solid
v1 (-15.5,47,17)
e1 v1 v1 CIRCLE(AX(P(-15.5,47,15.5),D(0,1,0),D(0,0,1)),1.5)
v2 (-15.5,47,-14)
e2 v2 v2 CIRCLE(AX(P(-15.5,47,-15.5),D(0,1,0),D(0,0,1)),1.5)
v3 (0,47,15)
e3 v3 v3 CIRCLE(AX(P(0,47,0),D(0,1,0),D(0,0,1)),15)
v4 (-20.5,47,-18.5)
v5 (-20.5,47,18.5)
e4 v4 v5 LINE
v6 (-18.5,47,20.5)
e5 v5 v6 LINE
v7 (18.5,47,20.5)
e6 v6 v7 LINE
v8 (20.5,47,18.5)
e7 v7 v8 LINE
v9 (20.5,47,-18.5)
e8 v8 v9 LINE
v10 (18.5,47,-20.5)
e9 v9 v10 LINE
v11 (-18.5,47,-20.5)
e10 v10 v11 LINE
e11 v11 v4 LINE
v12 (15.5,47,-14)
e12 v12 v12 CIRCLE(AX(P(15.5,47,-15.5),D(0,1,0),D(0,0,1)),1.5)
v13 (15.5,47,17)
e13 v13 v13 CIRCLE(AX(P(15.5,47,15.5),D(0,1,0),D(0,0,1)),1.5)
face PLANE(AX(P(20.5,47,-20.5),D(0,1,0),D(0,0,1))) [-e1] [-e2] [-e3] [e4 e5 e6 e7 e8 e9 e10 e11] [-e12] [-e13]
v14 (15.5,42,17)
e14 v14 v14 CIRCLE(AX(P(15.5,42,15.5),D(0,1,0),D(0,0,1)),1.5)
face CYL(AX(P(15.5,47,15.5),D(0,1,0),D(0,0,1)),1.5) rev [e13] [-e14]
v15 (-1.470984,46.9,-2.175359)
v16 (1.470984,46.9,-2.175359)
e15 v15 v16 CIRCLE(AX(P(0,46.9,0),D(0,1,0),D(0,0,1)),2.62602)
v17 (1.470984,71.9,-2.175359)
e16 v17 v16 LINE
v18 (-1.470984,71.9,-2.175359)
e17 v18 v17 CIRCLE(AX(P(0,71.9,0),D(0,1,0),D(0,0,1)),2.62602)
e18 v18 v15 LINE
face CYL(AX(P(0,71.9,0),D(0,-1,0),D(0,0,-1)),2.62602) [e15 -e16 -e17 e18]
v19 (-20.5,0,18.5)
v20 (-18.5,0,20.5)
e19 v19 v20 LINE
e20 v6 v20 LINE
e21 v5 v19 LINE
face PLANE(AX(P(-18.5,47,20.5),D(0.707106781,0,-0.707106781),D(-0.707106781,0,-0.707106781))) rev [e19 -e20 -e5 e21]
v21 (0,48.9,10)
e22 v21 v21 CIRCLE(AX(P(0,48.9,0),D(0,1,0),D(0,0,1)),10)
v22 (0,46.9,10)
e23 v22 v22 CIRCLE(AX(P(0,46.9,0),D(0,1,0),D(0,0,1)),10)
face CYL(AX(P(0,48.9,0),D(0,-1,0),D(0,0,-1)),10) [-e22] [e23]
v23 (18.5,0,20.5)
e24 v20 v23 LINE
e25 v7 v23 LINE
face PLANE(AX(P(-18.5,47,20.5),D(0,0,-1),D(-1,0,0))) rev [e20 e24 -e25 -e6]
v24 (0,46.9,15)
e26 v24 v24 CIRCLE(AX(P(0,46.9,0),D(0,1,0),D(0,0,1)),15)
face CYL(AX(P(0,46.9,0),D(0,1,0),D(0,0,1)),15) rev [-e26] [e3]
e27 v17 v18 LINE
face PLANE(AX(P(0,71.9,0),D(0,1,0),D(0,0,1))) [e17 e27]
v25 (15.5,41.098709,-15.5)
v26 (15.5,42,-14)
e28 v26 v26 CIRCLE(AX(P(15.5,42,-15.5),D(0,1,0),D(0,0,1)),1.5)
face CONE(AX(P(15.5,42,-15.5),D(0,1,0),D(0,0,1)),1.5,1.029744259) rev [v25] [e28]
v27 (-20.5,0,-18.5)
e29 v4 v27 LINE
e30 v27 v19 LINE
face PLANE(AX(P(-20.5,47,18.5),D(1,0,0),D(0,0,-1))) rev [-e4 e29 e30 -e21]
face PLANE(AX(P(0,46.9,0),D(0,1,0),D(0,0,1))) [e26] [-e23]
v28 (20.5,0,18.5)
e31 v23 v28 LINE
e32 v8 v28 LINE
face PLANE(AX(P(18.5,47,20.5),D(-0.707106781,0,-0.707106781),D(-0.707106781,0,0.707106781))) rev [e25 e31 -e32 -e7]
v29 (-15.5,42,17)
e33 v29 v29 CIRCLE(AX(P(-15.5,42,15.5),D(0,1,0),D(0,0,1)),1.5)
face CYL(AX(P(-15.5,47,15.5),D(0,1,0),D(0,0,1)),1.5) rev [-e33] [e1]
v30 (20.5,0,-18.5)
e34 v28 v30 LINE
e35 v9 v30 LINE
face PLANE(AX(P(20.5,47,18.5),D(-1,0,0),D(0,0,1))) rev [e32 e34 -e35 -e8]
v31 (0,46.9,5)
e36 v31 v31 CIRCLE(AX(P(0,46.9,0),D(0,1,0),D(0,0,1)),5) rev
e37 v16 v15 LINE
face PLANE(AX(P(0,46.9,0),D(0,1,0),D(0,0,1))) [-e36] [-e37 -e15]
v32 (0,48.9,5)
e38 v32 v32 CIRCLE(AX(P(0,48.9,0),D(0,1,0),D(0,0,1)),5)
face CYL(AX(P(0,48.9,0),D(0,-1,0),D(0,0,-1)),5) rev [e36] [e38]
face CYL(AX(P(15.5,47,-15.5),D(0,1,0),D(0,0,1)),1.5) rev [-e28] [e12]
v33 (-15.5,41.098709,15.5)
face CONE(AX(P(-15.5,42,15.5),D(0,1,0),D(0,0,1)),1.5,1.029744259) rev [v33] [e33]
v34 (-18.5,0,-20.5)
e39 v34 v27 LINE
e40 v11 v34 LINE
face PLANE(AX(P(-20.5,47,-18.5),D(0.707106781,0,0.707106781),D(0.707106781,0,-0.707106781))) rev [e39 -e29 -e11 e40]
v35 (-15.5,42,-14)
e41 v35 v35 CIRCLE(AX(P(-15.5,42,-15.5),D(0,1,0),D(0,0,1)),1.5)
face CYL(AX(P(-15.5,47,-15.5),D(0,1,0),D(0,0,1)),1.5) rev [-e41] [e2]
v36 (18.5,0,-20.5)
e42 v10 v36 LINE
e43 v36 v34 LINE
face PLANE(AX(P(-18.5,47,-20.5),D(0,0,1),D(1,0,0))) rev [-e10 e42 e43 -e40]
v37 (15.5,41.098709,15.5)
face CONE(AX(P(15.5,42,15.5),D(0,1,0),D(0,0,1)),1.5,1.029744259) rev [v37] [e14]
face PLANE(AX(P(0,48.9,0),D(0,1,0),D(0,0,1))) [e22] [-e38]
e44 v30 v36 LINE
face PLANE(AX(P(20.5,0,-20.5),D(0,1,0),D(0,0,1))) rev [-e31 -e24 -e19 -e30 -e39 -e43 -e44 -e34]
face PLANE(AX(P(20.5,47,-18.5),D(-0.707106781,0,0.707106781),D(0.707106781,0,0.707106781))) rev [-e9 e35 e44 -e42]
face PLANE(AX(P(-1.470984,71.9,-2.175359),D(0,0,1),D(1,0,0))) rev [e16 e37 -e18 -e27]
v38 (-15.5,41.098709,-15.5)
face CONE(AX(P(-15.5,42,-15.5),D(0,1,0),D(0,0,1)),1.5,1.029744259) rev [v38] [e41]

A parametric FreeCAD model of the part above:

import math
import FreeCAD as App
import Part
import Sketcher
from FreeCAD import Vector
Q = App.Units.Quantity

doc = App.newDocument("Part")
body = doc.addObject("PartDesign::Body", "Body")

sketch1 = body.newObject("Sketcher::SketchObject", "Sketch")
sketch1.AttachmentSupport = (doc.getObject("XZ_Plane"), [""])
sketch1.MapMode = "FlatFace"
sketch1.addGeometry([
    Part.LineSegment(Vector(-18.5, -20.5, 0), Vector(-20.5, -18.5, 0)),
    Part.LineSegment(Vector(-20.5, -18.5, 0), Vector(-20.5, 18.5, 0)),
    Part.LineSegment(Vector(-20.5, 18.5, 0), Vector(-18.5, 20.5, 0)),
    Part.LineSegment(Vector(-18.5, 20.5, 0), Vector(18.5, 20.5, 0)),
    Part.LineSegment(Vector(18.5, 20.5, 0), Vector(20.5, 18.5, 0)),
    Part.LineSegment(Vector(20.5, 18.5, 0), Vector(20.5, -18.5, 0)),
    Part.LineSegment(Vector(20.5, -18.5, 0), Vector(18.5, -20.5, 0)),
    Part.LineSegment(Vector(18.5, -20.5, 0), Vector(-18.5, -20.5, 0)),
], False)
sketch1.addConstraint([
    Sketcher.Constraint("Coincident", 0, 2, 1, 1),
    Sketcher.Constraint("Coincident", 1, 2, 2, 1),
    Sketcher.Constraint("Coincident", 2, 2, 3, 1),
    Sketcher.Constraint("Coincident", 3, 2, 4, 1),
    Sketcher.Constraint("Coincident", 4, 2, 5, 1),
    Sketcher.Constraint("Coincident", 5, 2, 6, 1),
    Sketcher.Constraint("Coincident", 6, 2, 7, 1),
    Sketcher.Constraint("Coincident", 7, 2, 0, 1),
    Sketcher.Constraint("Vertical", 1),
    Sketcher.Constraint("Horizontal", 3),
    Sketcher.Constraint("Vertical", 5),
    Sketcher.Constraint("Horizontal", 7),
    Sketcher.Constraint("Symmetric", 0, 2, 4, 2, -1, 1),
    Sketcher.Constraint("Symmetric", 2, 2, 6, 2, -1, 1),
    Sketcher.Constraint("Perpendicular", 0, 2),
    Sketcher.Constraint("Perpendicular", 2, 4),
    Sketcher.Constraint("Perpendicular", 4, 6),
    Sketcher.Constraint("Horizontal", 1, 2, 4, 2),
    Sketcher.Constraint("Vertical", 3, 2, 6, 2),
    Sketcher.Constraint("Equal", 7, 1),
    Sketcher.Constraint("DistanceX", 3, 1, 3, 2, Q("37 mm")),
    Sketcher.Constraint("DistanceX", 1, 2, 2, 2, Q("2 mm")),
])
pad1 = body.newObject("PartDesign::Pad", "Pad")
pad1.Profile = sketch1
pad1.Length = 47
pad1.Reversed = True

sketch2 = body.newObject("Sketcher::SketchObject", "Sketch001")
sketch2.AttachmentSupport = (doc.getObject("XZ_Plane"), [""])
sketch2.MapMode = "FlatFace"
sketch2.AttachmentOffset = App.Placement(Vector(0, 0, -47), App.Rotation())
sketch2.addGeometry(Part.Circle(Vector(0, 0, 0), Vector(0, 0, 1), 15), False)
sketch2.addConstraint([
    Sketcher.Constraint("Coincident", 0, 3, -1, 1),
    Sketcher.Constraint("Diameter", 0, Q("30 mm")),
])
pocket1 = body.newObject("PartDesign::Pocket", "Pocket")
pocket1.Profile = sketch2
pocket1.Length = 0.1
pocket1.Reversed = True

sketch3 = body.newObject("Sketcher::SketchObject", "Sketch002")
sketch3.AttachmentSupport = (doc.getObject("XZ_Plane"), [""])
sketch3.MapMode = "FlatFace"
sketch3.AttachmentOffset = App.Placement(Vector(0, 0, -46.9), App.Rotation())
sketch3.addGeometry([
    Part.Circle(Vector(0, 0, 0), Vector(0, 0, 1), 10),
    Part.Circle(Vector(0, 0, 0), Vector(0, 0, 1), 5),
], False)
sketch3.addConstraint([
    Sketcher.Constraint("Coincident", 0, 3, -1, 1),
    Sketcher.Constraint("Coincident", 1, 3, -1, 1),
    Sketcher.Constraint("Diameter", 0, Q("20 mm")),
    Sketcher.Constraint("Diameter", 1, Q("10 mm")),
])
pad2 = body.newObject("PartDesign::Pad", "Pad001")
pad2.Profile = sketch3
pad2.Length = 2
pad2.Reversed = True

sketch4 = body.newObject("Sketcher::SketchObject", "Sketch003")
sketch4.AttachmentSupport = (doc.getObject("XZ_Plane"), [""])
sketch4.MapMode = "FlatFace"
sketch4.AttachmentOffset = App.Placement(Vector(0, 0, -46.9), App.Rotation())
sketch4.addGeometry([
    Part.LineSegment(Vector(1.5, -2.2, 0), Vector(-1.5, -2.2, 0)),
    Part.ArcOfCircle(Part.Circle(Vector(0, 0, 0), Vector(0, 0, 1), 2.6), math.radians(-56), math.radians(236)),
], False)
sketch4.addConstraint([
    Sketcher.Constraint("Coincident", 0, 1, 1, 1),
    Sketcher.Constraint("Coincident", 1, 2, 0, 2),
    Sketcher.Constraint("Horizontal", 0),
    Sketcher.Constraint("Coincident", 1, 3, -1, 1),
    Sketcher.Constraint("Radius", 1, Q("2.62602 mm")),
    Sketcher.Constraint("DistanceX", 0, 2, 0, 1, Q("2.941968 mm")),
])
pad3 = body.newObject("PartDesign::Pad", "Pad002")
pad3.Profile = sketch4
pad3.Length = 25
pad3.Reversed = True

sketch5 = body.newObject("Sketcher::SketchObject", "Sketch004")
sketch5.AttachmentSupport = (doc.getObject("XZ_Plane"), [""])
sketch5.MapMode = "FlatFace"
sketch5.AttachmentOffset = App.Placement(Vector(0, 0, -47), App.Rotation())
sketch5.addGeometry([
    Part.Circle(Vector(15.5, -15.5, 0), Vector(0, 0, 1), 1.5),
    Part.Circle(Vector(-15.5, -15.5, 0), Vector(0, 0, 1), 1.5),
    Part.Circle(Vector(-15.5, 15.5, 0), Vector(0, 0, 1), 1.5),
    Part.Circle(Vector(15.5, 15.5, 0), Vector(0, 0, 1), 1.5),
], False)
sketch5.addConstraint([
    Sketcher.Constraint("Equal", 0, 1),
    Sketcher.Constraint("Equal", 1, 2),
    Sketcher.Constraint("Equal", 2, 3),
    Sketcher.Constraint("Symmetric", 0, 3, 2, 3, -1, 1),
    Sketcher.Constraint("Symmetric", 1, 3, 3, 3, -1, 1),
    Sketcher.Constraint("Symmetric", 0, 3, 1, 3, -2),
    Sketcher.Constraint("Diameter", 0, Q("3 mm")),
    Sketcher.Constraint("DistanceX", 1, 3, 0, 3, Q("31 mm")),
    Sketcher.Constraint("DistanceY", 1, 3, 2, 3, Q("31 mm")),
])
doc.recompute()
hole = body.newObject("PartDesign::Hole", "Hole")
hole.Profile = sketch5
hole.ThreadType = "None"
hole.Diameter = 3
hole.DepthType = "Dimension"
hole.Depth = 5
hole.DrillPoint = "Angled"
hole.DrillPointAngle = 118
hole.Reversed = True

doc.recompute()
